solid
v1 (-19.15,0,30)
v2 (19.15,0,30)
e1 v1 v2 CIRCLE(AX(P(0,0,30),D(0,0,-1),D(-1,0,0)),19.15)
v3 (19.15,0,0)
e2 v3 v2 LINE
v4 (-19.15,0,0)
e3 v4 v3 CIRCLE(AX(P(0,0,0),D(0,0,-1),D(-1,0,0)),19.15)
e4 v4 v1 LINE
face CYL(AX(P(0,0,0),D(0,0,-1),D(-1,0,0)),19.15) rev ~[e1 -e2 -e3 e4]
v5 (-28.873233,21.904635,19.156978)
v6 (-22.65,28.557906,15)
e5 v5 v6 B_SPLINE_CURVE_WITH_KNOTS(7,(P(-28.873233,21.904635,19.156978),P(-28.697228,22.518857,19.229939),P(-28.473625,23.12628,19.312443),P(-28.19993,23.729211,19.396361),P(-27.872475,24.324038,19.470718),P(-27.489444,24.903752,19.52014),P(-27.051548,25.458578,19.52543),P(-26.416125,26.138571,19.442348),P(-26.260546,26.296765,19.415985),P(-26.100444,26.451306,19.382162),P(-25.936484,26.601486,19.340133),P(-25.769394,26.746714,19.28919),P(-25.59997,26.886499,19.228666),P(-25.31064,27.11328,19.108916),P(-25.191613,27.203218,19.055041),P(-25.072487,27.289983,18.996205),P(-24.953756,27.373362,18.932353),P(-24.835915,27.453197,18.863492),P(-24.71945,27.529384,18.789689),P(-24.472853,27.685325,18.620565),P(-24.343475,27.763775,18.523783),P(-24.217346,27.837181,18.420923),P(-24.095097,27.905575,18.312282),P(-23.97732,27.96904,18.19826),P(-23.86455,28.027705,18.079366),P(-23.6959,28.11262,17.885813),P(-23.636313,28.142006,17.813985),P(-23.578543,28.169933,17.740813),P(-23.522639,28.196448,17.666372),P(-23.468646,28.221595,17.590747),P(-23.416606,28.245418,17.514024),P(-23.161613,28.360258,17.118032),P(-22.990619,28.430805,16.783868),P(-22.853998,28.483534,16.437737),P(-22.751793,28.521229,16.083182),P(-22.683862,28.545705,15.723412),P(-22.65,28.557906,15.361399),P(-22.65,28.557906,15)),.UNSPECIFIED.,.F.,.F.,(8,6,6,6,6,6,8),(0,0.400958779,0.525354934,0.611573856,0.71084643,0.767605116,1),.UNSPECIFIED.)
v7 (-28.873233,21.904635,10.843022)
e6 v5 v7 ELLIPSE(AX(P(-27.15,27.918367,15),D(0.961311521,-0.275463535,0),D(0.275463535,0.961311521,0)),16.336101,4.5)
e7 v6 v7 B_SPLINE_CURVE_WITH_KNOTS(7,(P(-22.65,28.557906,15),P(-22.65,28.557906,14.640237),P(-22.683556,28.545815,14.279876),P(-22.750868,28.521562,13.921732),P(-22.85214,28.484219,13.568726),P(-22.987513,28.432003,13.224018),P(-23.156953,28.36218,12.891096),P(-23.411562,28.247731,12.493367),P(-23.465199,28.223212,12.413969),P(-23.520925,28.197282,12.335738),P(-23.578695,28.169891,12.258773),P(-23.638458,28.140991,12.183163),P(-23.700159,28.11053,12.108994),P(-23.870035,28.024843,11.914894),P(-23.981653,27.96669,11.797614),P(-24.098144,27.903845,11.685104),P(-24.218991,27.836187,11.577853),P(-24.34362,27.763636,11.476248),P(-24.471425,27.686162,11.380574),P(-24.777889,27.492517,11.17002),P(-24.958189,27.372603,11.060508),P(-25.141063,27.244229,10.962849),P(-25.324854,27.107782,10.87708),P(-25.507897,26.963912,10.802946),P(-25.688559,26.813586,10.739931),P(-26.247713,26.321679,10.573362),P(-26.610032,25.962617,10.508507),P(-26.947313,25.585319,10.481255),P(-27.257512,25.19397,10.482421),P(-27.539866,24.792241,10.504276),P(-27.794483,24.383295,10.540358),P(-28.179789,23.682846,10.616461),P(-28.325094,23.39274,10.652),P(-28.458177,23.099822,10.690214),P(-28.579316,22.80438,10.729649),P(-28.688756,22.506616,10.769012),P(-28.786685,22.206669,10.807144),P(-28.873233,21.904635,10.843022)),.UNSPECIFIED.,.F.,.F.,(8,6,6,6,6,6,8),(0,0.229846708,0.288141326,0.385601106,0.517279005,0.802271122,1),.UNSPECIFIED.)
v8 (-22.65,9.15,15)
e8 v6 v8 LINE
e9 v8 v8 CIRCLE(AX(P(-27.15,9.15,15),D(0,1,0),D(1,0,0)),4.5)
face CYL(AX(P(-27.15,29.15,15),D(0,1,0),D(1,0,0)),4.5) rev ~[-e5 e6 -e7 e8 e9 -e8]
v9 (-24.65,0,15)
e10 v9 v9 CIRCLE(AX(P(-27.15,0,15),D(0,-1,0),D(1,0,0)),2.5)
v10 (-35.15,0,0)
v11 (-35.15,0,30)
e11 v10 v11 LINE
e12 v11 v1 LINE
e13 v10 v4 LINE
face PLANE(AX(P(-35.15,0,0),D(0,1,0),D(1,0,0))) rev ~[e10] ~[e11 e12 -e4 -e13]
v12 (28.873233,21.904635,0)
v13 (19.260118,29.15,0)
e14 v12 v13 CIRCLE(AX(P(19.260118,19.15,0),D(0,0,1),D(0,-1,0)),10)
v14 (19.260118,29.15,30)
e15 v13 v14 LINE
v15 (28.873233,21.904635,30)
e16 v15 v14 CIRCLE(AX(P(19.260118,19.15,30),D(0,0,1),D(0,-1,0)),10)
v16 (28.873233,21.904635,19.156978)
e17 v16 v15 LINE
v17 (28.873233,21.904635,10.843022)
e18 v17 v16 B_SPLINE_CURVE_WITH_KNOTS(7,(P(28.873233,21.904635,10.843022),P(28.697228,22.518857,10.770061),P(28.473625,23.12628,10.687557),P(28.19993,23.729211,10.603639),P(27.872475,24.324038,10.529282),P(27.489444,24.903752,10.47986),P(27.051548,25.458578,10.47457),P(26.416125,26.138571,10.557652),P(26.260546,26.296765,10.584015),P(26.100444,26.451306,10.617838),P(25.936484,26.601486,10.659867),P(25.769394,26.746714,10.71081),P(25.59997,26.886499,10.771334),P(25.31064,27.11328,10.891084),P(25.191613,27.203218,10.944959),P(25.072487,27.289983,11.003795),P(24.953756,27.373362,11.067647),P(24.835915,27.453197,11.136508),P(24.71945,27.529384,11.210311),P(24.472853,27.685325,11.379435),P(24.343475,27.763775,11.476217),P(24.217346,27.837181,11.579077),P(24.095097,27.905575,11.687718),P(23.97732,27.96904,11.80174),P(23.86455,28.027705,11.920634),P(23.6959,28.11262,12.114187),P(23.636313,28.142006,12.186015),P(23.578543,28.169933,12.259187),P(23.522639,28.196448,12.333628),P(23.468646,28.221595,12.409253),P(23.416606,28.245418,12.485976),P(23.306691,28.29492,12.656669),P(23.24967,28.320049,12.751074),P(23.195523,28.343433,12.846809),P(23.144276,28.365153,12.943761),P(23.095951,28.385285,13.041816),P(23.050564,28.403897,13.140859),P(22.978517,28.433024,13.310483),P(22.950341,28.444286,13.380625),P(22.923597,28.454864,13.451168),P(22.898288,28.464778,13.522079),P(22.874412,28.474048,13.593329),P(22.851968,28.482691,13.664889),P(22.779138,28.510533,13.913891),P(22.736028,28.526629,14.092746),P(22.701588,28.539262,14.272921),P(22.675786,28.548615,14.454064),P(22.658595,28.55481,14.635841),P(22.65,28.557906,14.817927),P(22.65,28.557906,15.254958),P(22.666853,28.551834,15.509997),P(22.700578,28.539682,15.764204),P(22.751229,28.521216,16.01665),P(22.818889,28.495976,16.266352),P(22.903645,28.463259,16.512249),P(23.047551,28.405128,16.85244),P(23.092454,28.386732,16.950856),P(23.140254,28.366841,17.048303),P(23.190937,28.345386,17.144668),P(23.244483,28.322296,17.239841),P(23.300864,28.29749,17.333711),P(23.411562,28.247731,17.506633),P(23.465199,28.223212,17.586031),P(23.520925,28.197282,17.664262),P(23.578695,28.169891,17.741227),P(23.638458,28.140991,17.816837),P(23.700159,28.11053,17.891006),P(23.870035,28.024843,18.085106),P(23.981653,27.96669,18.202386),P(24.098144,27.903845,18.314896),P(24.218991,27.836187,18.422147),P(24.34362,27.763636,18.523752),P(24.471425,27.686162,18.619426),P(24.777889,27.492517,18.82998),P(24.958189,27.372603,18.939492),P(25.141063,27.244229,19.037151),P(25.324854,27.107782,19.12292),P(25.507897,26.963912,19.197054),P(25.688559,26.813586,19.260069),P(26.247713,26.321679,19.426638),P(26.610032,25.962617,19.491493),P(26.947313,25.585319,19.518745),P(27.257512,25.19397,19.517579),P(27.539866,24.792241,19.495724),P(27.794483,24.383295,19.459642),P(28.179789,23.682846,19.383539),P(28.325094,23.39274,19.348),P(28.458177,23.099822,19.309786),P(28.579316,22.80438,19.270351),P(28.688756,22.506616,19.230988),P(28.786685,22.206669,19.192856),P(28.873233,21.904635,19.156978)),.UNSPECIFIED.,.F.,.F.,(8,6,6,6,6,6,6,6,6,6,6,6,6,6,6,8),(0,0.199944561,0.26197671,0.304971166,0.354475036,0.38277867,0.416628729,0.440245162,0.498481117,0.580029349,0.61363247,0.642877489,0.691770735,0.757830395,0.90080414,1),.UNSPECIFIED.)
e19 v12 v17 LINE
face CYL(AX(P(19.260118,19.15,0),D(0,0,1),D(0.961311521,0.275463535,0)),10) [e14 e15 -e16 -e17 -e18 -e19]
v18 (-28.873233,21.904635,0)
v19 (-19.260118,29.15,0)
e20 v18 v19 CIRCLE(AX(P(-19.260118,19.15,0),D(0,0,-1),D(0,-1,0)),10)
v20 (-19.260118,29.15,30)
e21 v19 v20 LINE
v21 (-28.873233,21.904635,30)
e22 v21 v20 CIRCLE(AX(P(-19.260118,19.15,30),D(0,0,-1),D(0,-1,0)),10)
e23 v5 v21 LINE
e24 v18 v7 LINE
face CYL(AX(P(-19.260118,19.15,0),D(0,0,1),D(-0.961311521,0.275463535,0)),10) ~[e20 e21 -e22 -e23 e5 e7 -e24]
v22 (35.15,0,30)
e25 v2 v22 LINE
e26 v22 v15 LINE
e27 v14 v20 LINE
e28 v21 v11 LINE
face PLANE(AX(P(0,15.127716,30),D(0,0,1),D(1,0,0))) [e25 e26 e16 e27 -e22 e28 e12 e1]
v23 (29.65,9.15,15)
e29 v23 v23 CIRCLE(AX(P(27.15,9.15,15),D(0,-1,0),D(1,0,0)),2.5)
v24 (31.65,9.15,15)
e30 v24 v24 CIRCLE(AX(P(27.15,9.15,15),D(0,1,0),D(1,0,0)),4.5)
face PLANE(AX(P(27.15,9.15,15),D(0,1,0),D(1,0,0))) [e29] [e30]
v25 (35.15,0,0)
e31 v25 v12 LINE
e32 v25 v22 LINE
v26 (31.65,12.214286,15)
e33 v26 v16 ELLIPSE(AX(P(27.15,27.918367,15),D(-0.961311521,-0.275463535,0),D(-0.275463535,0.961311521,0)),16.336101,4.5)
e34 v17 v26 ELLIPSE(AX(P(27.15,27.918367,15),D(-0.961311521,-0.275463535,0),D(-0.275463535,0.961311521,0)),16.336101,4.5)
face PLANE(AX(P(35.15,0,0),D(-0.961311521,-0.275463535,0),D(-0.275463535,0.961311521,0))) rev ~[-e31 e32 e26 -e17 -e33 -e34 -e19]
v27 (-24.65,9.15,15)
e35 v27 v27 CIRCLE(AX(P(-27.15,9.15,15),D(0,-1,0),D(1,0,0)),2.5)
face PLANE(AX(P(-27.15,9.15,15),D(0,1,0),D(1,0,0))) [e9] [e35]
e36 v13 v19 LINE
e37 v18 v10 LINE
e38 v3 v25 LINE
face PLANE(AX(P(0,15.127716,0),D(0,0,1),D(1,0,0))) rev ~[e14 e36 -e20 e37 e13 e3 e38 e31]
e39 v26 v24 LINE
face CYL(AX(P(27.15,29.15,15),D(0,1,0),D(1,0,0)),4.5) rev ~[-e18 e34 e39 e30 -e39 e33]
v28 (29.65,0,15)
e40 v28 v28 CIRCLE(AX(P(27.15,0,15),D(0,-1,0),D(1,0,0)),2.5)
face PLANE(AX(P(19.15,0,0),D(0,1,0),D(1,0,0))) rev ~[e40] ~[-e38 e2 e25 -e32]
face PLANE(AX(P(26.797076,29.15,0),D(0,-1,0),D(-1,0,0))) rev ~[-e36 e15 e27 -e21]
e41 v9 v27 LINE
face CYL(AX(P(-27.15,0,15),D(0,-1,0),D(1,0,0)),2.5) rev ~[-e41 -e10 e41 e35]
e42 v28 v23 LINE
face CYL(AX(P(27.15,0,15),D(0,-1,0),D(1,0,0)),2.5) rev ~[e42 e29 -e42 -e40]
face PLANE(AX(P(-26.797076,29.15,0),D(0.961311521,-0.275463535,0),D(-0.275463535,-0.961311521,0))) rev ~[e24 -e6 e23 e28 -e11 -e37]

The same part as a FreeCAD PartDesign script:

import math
import FreeCAD as App
import Part
import Sketcher
from FreeCAD import Vector
Q = App.Units.Quantity


def edges_at(feature, points):
    """Names of the edges that pass closest to the given points."""
    edges = feature.Shape.Edges
    near = lambda p: min(range(len(edges)), key=lambda i: edges[i].distToShape(Part.Vertex(*p))[0])
    return sorted({f"Edge{near(p) + 1}" for p in points})

doc = App.newDocument("Part")
body = doc.addObject("PartDesign::Body", "Body")

# Sketch on XY plane
sketch1 = body.newObject("Sketcher::SketchObject", "Sketch")
sketch1.AttachmentSupport = (doc.getObject("XY_Plane"), [""])
sketch1.MapMode = "FlatFace"
sketch1.addGeometry(Part.LineSegment(Vector(-27, 29, 0), Vector(-35, 0, 0)), False)
sketch1.addGeometry(Part.LineSegment(Vector(-35, 0, 0), Vector(-19, 0, 0)), False)
sketch1.addGeometry(Part.ArcOfCircle(Part.Circle(Vector(0, 0, 0), Vector(0, 0, 1), 19), math.radians(0), math.radians(180)), False)
sketch1.addGeometry(Part.LineSegment(Vector(19, 0, 0), Vector(35, 0, 0)), False)
sketch1.addGeometry(Part.LineSegment(Vector(35, 0, 0), Vector(27, 29, 0)), False)
sketch1.addGeometry(Part.LineSegment(Vector(27, 29, 0), Vector(-27, 29, 0)), False)
sketch1.addConstraint(Sketcher.Constraint("Coincident", 0, 2, 1, 1))
sketch1.addConstraint(Sketcher.Constraint("Coincident", 1, 2, 2, 2))
sketch1.addConstraint(Sketcher.Constraint("Coincident", 2, 1, 3, 1))
sketch1.addConstraint(Sketcher.Constraint("Coincident", 3, 2, 4, 1))
sketch1.addConstraint(Sketcher.Constraint("Coincident", 4, 2, 5, 1))
sketch1.addConstraint(Sketcher.Constraint("Coincident", 5, 2, 0, 1))
sketch1.addConstraint(Sketcher.Constraint("Horizontal", 1))
sketch1.addConstraint(Sketcher.Constraint("Horizontal", 3))
sketch1.addConstraint(Sketcher.Constraint("Horizontal", 5))
sketch1.addConstraint(Sketcher.Constraint("Coincident", 2, 3, -1, 1))
sketch1.addConstraint(Sketcher.Constraint("Symmetric", 0, 2, 3, 2, -1, 1))
sketch1.addConstraint(Sketcher.Constraint("PointOnObject", 0, 2, -1))
sketch1.addConstraint(Sketcher.Constraint("Equal", 0, 4))
sketch1.addConstraint(Sketcher.Constraint("DistanceX", 1, 1, 1, 2, Q("16 mm")))
sketch1.addConstraint(Sketcher.Constraint("Radius", 2, Q("19.15 mm")))
sketch1.addConstraint(Sketcher.Constraint("DistanceY", -1, 1, 4, 2, Q("29.15 mm")))
sketch1.addConstraint(Sketcher.Constraint("DistanceX", 5, 2, 5, 1, Q("53.594152 mm")))
pad1 = body.newObject("PartDesign::Pad", "Pad")
pad1.Profile = sketch1
pad1.Length = 30
doc.recompute()

fillet = body.newObject("PartDesign::Fillet", "Fillet")
fillet.Base = (pad1, edges_at(pad1, [(-26.797, 29.15, 15), (26.797, 29.15, 15)]))
fillet.Radius = 10

# Sketch on XZ plane
sketch2 = body.newObject("Sketcher::SketchObject", "Sketch001")
sketch2.AttachmentSupport = (doc.getObject("XZ_Plane"), [""])
sketch2.MapMode = "FlatFace"
sketch2.addGeometry(Part.Circle(Vector(-27.1, 15, 0), Vector(0, 0, 1), 2.5), False)
sketch2.addGeometry(Part.Circle(Vector(27.1, 15, 0), Vector(0, 0, 1), 2.5), False)
sketch2.addConstraint(Sketcher.Constraint("Equal", 0, 1))
sketch2.addConstraint(Sketcher.Constraint("Symmetric", 0, 3, 1, 3, -2))
sketch2.addConstraint(Sketcher.Constraint("Diameter", 0, Q("5 mm")))
sketch2.addConstraint(Sketcher.Constraint("DistanceY", -1, 1, 0, 3, Q("15 mm")))
sketch2.addConstraint(Sketcher.Constraint("DistanceX", 0, 3, 1, 3, Q("54.3 mm")))
pocket1 = body.newObject("PartDesign::Pocket", "Pocket")
pocket1.Profile = sketch2
pocket1.Type = "ThroughAll"

# Sketch on XZ plane
sketch3 = body.newObject("Sketcher::SketchObject", "Sketch002")
sketch3.AttachmentSupport = (doc.getObject("XZ_Plane"), [""])
sketch3.MapMode = "FlatFace"
sketch3.AttachmentOffset = App.Placement(Vector(0, 0, -29.15), App.Rotation())
sketch3.addGeometry(Part.Circle(Vector(27.1, 15, 0), Vector(0, 0, 1), 4.5), False)
sketch3.addGeometry(Part.Circle(Vector(-27.1, 15, 0), Vector(0, 0, 1), 4.5), False)
sketch3.addConstraint(Sketcher.Constraint("Equal", 0, 1))
sketch3.addConstraint(Sketcher.Constraint("Symmetric", 0, 3, 1, 3, -2))
sketch3.addConstraint(Sketcher.Constraint("Diameter", 0, Q("9 mm")))
sketch3.addConstraint(Sketcher.Constraint("DistanceY", -1, 1, 0, 3, Q("15 mm")))
sketch3.addConstraint(Sketcher.Constraint("DistanceX", 1, 3, 0, 3, Q("54.3 mm")))
pocket2 = body.newObject("PartDesign::Pocket", "Pocket001")
pocket2.Profile = sketch3
pocket2.Length = 20
pocket2.Reversed = True

doc.recompute()
